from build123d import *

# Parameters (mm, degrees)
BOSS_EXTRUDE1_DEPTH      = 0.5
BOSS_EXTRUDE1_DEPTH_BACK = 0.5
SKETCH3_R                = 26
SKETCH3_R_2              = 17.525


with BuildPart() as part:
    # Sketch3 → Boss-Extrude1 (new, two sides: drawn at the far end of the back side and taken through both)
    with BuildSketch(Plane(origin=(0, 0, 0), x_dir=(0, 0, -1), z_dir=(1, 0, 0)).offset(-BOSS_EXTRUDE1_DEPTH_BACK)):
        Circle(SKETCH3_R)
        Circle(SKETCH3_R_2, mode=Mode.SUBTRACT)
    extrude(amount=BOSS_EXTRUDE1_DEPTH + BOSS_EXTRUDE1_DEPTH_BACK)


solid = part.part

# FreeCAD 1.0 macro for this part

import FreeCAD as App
import Part
import Sketcher
from FreeCAD import Vector
Q = App.Units.Quantity

doc = App.newDocument("Part")
params = doc.addObject("Spreadsheet::Sheet", "Params")
for row, (alias, value) in enumerate([
    ("sketch1_diameter", "52 mm"),
    ("sketch1_diameter2", "35.05 mm"),
    ("pad1_length", "0.5 mm"),
    ("pad1_length2", "0.5 mm"),
], start=1):
    params.set(f"A{row}", alias)
    params.set(f"B{row}", "=" + value)
    params.setAlias(f"B{row}", alias)

body = doc.addObject("PartDesign::Body", "Body")

sketch1 = body.newObject("Sketcher::SketchObject", "Sketch")
sketch1.AttachmentSupport = (doc.getObject("YZ_Plane"), [""])
sketch1.MapMode = "FlatFace"
sketch1.addGeometry([
    Part.Circle(Vector(0, 0, 0), Vector(0, 0, 1), 26),
    Part.Circle(Vector(0, 0, 0), Vector(0, 0, 1), 18),
], False)
sketch1.addConstraint([
    Sketcher.Constraint("Coincident", 0, 3, -1, 1),
    Sketcher.Constraint("Coincident", 1, 3, -1, 1),
    Sketcher.Constraint("Diameter", 0, Q("52 mm")),
    Sketcher.Constraint("Diameter", 1, Q("35.05 mm")),
])
sketch1.setExpression("Constraints[2]", "Params.sketch1_diameter")
sketch1.setExpression("Constraints[3]", "Params.sketch1_diameter2")
pad1 = body.newObject("PartDesign::Pad", "Pad")
pad1.Profile = sketch1
pad1.Type = "TwoLengths"
pad1.setExpression("Length", "Params.pad1_length")
pad1.setExpression("Length2", "Params.pad1_length2")

doc.recompute()
